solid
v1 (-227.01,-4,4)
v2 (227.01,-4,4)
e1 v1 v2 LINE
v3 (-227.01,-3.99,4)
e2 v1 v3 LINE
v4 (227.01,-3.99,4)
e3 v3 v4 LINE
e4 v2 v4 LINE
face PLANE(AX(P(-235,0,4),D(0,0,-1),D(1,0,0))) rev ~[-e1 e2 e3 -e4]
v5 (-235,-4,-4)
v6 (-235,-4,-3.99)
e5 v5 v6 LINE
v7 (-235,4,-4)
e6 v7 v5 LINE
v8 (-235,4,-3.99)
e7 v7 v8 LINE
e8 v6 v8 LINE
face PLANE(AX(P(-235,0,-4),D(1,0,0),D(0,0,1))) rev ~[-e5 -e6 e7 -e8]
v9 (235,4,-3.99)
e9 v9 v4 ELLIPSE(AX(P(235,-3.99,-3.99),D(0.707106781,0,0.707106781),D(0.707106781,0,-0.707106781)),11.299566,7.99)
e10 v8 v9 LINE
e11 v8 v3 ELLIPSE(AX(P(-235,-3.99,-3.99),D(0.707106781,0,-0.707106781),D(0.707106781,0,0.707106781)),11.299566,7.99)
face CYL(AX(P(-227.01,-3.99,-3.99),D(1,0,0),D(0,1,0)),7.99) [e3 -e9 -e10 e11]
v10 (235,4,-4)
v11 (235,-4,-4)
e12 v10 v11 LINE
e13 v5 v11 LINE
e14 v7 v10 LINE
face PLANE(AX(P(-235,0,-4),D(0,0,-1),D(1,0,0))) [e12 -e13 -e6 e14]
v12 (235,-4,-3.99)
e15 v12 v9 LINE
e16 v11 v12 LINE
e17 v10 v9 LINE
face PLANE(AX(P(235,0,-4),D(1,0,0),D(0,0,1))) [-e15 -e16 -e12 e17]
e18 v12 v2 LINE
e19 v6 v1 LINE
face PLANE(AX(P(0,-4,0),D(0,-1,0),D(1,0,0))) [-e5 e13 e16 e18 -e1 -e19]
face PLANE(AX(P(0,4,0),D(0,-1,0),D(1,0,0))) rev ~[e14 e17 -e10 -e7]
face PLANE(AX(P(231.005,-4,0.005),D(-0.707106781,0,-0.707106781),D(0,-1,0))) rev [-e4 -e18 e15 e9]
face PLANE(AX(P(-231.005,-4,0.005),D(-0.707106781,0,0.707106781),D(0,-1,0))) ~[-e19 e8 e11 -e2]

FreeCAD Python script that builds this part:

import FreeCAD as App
import Part
import Sketcher
from FreeCAD import Vector
Q = App.Units.Quantity


def edges_at(feature, points):
    """Names of the edges that pass closest to the given points."""
    edges = feature.Shape.Edges
    near = lambda p: min(range(len(edges)), key=lambda i: edges[i].distToShape(Part.Vertex(*p))[0])
    return sorted({f"Edge{near(p) + 1}" for p in points})


def add_polygon(sketch, points):
    """Adds a closed chain of lines whose ends are joined by coincident constraints."""
    first, n = sketch.GeometryCount, len(points)
    for a, b in zip(points, points[1:] + points[:1]):
        sketch.addGeometry(Part.LineSegment(App.Vector(*a, 0), App.Vector(*b, 0)), False)
    for i in range(n):
        sketch.addConstraint(Sketcher.Constraint("Coincident", first + i, 2, first + (i + 1) % n, 1))

doc = App.newDocument("Part")
body = doc.addObject("PartDesign::Body", "Body")

# Sketch on XZ plane
sketch1 = body.newObject("Sketcher::SketchObject", "Sketch")
sketch1.AttachmentSupport = (doc.getObject("XZ_Plane"), [""])
sketch1.MapMode = "FlatFace"
add_polygon(sketch1, [(-235, 4), (-235, -4), (235, -4), (235, 4)])  # lines 0-3
sketch1.addConstraint(Sketcher.Constraint("Vertical", 0))
sketch1.addConstraint(Sketcher.Constraint("Horizontal", 1))
sketch1.addConstraint(Sketcher.Constraint("Vertical", 2))
sketch1.addConstraint(Sketcher.Constraint("Horizontal", 3))
sketch1.addConstraint(Sketcher.Constraint("Symmetric", 0, 2, 2, 2, -1, 1))
sketch1.addConstraint(Sketcher.Constraint("DistanceX", 1, 1, 1, 2, Q("470 mm")))
sketch1.addConstraint(Sketcher.Constraint("DistanceY", 0, 2, 0, 1, Q("8 mm")))
pad1 = body.newObject("PartDesign::Pad", "Pad")
pad1.Profile = sketch1
pad1.Length = 8
pad1.Midplane = True
doc.recompute()

chamfer = body.newObject("PartDesign::Chamfer", "Chamfer")
chamfer.Base = (pad1, edges_at(pad1, [(235, 0, 4), (-235, 0, 4)]))
chamfer.Size = 7.99
doc.recompute()

fillet = body.newObject("PartDesign::Fillet", "Fillet")
fillet.Base = (chamfer, edges_at(chamfer, [(0, 4, 4)]))
fillet.Radius = 7.99

doc.recompute()
